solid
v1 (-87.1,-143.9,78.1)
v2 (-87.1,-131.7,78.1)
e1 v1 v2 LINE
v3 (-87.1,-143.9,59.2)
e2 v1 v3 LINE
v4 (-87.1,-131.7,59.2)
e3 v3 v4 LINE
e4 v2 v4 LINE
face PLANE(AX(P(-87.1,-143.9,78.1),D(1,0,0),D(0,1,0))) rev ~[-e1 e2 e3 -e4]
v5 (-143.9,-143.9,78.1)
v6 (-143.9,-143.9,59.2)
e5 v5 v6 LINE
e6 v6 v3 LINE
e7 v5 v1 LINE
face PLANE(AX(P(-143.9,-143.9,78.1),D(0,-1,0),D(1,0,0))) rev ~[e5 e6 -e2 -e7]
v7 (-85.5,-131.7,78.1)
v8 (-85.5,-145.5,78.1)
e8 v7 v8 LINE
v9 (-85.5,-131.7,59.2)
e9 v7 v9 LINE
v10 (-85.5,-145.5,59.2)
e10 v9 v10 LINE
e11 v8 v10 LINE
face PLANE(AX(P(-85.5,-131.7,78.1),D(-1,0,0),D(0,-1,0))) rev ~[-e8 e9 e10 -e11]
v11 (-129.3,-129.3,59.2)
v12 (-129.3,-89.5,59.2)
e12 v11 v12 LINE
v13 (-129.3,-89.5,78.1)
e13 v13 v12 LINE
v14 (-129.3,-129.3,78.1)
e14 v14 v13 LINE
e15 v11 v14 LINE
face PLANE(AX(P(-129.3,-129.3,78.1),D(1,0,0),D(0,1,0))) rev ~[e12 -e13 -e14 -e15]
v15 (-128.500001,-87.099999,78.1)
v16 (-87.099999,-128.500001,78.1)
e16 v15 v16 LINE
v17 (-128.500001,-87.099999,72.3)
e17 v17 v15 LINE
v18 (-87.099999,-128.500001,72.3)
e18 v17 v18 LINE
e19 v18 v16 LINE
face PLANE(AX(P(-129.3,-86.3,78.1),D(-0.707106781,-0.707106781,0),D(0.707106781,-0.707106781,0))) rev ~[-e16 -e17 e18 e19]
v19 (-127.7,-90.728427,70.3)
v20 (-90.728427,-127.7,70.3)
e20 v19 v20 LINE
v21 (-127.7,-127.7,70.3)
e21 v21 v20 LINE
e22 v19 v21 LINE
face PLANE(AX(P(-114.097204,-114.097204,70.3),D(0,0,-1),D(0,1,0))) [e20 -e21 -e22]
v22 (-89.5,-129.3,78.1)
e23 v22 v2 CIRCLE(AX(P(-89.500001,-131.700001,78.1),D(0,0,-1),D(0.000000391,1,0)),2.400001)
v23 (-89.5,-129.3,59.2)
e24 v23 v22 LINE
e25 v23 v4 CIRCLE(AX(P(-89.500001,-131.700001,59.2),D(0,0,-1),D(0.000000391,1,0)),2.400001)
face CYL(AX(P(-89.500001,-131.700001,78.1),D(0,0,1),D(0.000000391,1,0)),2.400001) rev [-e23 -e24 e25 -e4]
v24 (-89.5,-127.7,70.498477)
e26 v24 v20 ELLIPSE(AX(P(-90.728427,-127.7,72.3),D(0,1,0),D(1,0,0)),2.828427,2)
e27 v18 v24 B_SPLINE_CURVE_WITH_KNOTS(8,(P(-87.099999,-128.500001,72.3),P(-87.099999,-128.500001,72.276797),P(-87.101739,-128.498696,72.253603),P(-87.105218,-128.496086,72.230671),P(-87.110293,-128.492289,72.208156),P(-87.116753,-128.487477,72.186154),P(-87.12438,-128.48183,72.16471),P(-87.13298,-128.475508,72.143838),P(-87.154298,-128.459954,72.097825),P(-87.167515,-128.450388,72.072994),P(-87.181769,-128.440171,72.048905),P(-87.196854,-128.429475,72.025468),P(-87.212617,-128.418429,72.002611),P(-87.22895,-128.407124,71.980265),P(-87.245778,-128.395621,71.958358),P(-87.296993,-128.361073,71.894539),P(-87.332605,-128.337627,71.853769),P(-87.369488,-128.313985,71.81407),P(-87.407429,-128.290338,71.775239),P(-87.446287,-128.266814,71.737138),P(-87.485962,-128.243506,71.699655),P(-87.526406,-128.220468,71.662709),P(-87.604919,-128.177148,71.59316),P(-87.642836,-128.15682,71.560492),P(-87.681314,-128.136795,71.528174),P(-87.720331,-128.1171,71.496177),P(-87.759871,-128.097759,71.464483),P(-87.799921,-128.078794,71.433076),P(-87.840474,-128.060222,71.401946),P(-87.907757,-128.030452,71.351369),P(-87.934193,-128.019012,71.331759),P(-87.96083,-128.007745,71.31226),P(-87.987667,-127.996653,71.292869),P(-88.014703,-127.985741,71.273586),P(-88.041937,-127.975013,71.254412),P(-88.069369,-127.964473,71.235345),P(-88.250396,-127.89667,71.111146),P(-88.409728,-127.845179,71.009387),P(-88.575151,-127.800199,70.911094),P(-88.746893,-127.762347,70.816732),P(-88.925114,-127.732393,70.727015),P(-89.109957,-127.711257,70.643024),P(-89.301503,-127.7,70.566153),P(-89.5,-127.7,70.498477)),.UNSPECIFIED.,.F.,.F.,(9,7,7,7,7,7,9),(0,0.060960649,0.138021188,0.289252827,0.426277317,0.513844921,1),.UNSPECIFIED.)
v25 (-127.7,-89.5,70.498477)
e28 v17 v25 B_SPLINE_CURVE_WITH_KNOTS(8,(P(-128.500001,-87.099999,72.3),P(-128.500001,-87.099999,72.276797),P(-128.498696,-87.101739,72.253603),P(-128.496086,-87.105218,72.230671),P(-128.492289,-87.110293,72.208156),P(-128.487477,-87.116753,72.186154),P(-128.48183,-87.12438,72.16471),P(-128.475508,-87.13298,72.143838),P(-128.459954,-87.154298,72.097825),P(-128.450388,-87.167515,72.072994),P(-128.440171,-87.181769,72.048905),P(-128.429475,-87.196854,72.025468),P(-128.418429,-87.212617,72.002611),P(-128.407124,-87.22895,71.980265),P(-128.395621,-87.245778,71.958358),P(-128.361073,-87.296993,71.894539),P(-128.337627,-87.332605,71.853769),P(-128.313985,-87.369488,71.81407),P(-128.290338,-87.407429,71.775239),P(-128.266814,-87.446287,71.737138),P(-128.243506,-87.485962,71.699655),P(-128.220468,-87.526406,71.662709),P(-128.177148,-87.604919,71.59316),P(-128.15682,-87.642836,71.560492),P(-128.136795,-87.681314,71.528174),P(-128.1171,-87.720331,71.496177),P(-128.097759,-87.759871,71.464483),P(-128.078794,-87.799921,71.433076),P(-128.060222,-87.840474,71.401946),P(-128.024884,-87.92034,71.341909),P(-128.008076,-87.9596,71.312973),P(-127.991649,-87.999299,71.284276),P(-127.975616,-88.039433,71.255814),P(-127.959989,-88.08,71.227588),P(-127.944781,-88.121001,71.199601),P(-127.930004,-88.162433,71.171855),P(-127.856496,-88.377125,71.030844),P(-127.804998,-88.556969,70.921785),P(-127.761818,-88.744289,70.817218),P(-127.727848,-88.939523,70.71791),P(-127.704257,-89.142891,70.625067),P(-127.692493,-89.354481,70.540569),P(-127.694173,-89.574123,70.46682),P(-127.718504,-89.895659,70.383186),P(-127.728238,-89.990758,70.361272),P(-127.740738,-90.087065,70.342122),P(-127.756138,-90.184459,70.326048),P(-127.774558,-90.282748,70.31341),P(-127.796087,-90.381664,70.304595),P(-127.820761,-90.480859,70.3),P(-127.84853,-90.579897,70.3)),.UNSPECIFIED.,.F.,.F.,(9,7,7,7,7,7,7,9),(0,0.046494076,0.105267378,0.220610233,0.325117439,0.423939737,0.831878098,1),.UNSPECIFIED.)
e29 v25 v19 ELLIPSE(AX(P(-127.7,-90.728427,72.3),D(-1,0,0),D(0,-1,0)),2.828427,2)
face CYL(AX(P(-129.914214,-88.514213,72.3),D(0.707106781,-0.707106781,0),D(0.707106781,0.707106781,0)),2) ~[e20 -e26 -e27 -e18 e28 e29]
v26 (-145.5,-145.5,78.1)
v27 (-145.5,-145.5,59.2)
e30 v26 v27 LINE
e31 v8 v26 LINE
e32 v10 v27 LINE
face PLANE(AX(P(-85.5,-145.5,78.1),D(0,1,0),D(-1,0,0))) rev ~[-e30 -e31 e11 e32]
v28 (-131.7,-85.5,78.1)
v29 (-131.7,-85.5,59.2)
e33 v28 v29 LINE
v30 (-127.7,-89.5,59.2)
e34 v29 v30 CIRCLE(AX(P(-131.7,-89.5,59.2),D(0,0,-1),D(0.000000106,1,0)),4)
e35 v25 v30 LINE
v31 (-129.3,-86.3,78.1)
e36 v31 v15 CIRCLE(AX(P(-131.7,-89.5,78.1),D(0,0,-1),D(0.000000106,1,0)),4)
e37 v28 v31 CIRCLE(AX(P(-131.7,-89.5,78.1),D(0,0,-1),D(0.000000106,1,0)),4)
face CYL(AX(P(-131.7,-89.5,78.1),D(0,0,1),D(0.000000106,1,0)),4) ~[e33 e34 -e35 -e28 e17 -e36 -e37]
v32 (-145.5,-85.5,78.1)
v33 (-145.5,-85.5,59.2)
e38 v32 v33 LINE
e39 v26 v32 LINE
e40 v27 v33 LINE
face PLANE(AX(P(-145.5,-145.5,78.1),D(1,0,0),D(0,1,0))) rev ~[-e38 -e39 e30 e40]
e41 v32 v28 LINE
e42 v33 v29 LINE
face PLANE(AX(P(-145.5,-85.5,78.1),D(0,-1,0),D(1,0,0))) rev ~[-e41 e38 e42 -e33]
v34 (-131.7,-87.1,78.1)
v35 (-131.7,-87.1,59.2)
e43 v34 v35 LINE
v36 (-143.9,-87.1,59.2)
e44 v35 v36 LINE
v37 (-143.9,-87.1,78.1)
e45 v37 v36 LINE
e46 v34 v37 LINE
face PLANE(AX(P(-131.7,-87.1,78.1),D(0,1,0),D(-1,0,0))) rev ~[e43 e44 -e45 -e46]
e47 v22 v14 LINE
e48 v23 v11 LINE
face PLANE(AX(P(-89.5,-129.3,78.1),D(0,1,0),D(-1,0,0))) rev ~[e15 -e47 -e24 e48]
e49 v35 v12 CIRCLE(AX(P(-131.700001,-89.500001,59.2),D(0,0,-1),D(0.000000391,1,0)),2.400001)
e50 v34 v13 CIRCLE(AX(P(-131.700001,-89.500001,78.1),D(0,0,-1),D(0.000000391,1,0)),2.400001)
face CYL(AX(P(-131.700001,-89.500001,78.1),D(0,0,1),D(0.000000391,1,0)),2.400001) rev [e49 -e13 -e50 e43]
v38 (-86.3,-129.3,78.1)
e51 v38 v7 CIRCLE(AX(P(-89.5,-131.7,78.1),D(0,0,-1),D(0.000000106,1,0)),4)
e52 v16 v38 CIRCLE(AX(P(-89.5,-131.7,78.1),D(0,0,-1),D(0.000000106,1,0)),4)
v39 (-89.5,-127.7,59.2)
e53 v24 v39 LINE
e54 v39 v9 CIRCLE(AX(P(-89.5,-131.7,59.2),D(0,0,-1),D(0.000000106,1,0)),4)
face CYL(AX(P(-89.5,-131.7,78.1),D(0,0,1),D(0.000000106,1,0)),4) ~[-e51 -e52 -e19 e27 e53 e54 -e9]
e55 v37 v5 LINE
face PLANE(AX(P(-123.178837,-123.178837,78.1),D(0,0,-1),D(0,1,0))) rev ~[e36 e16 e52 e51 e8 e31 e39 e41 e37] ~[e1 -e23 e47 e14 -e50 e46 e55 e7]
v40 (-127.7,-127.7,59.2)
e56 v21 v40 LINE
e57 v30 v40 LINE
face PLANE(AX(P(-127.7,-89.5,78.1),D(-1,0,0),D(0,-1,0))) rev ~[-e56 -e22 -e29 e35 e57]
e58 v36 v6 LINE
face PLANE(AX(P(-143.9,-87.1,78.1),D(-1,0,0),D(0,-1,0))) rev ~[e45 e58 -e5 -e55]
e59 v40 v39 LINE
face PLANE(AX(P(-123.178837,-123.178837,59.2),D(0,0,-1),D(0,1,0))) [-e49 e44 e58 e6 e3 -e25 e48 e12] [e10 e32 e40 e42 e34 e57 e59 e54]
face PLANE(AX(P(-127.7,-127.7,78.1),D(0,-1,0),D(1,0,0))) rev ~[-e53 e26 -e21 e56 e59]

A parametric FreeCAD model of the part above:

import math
import FreeCAD as App
import Part
import Sketcher
from FreeCAD import Vector


def edges_at(feature, points):
    """Names of the edges that pass closest to the given points."""
    edges = feature.Shape.Edges
    near = lambda p: min(range(len(edges)), key=lambda i: edges[i].distToShape(Part.Vertex(*p))[0])
    return sorted({f"Edge{near(p) + 1}" for p in points})

doc = App.newDocument("Part")
body = doc.addObject("PartDesign::Body", "Body")

# Sketch on XY plane
sketch1 = body.newObject("Sketcher::SketchObject", "Sketch")
sketch1.AttachmentSupport = (doc.getObject("XY_Plane"), [""])
sketch1.MapMode = "FlatFace"
sketch1.addGeometry([
    Part.LineSegment(Vector(-30, 30, 0), Vector(-30, -30, 0)),  # 0
    Part.LineSegment(Vector(-30, -30, 0), Vector(30, -30, 0)),  # 1
    Part.LineSegment(Vector(30, -30, 0), Vector(30, -16.2, 0)),  # 2
    Part.ArcOfCircle(Part.Circle(Vector(26, -16.2, 0), Vector(0, 0, 1), 4), math.radians(0), math.radians(90)),  # 3
    Part.LineSegment(Vector(26, -12.2, 0), Vector(-12.2, -12.2, 0)),  # 4
    Part.LineSegment(Vector(-12.2, -12.2, 0), Vector(-12.2, 26, 0)),  # 5
    Part.ArcOfCircle(Part.Circle(Vector(-16.2, 26, 0), Vector(0, 0, 1), 4), math.radians(0), math.radians(90)),  # 6
    Part.LineSegment(Vector(-16.2, 30, 0), Vector(-30, 30, 0)),  # 7
    Part.LineSegment(Vector(-28.4, -28.4, 0), Vector(-28.4, 28.4, 0)),  # 8
    Part.LineSegment(Vector(-28.4, 28.4, 0), Vector(-16.2, 28.4, 0)),  # 9
    Part.ArcOfCircle(Part.Circle(Vector(-16.2, 26, 0), Vector(0, 0, 1), 2.4), math.radians(0), math.radians(90)),  # 10
    Part.LineSegment(Vector(-13.8, 26, 0), Vector(-13.8, -13.8, 0)),  # 11
    Part.LineSegment(Vector(-13.8, -13.8, 0), Vector(26, -13.8, 0)),  # 12
    Part.ArcOfCircle(Part.Circle(Vector(26, -16.2, 0), Vector(0, 0, 1), 2.4), math.radians(0), math.radians(90)),  # 13
    Part.LineSegment(Vector(28.4, -16.2, 0), Vector(28.4, -28.4, 0)),  # 14
    Part.LineSegment(Vector(28.4, -28.4, 0), Vector(-28.4, -28.4, 0)),  # 15
], False)
sketch1.addConstraint([
    Sketcher.Constraint("Coincident", 0, 2, 1, 1),
    Sketcher.Constraint("Coincident", 1, 2, 2, 1),
    Sketcher.Constraint("Tangent", 2, 2, 3, 1),
    Sketcher.Constraint("Tangent", 3, 2, 4, 1),
    Sketcher.Constraint("Coincident", 4, 2, 5, 1),
    Sketcher.Constraint("Tangent", 5, 2, 6, 1),
    Sketcher.Constraint("Tangent", 6, 2, 7, 1),
    Sketcher.Constraint("Coincident", 7, 2, 0, 1),
    Sketcher.Constraint("Coincident", 8, 2, 9, 1),
    Sketcher.Constraint("Tangent", 9, 2, 10, 2),
    Sketcher.Constraint("Tangent", 10, 1, 11, 1),
    Sketcher.Constraint("Coincident", 11, 2, 12, 1),
    Sketcher.Constraint("Tangent", 12, 2, 13, 2),
    Sketcher.Constraint("Tangent", 13, 1, 14, 1),
    Sketcher.Constraint("Coincident", 14, 2, 15, 1),
    Sketcher.Constraint("Coincident", 15, 2, 8, 1),
    Sketcher.Constraint("Vertical", 0),
    Sketcher.Constraint("Horizontal", 1),
    Sketcher.Constraint("Vertical", 2),
    Sketcher.Constraint("Horizontal", 4),
    Sketcher.Constraint("Vertical", 5),
    Sketcher.Constraint("Horizontal", 7),
    Sketcher.Constraint("Vertical", 8),
    Sketcher.Constraint("Horizontal", 9),
    Sketcher.Constraint("Vertical", 11),
    Sketcher.Constraint("Horizontal", 12),
    Sketcher.Constraint("Vertical", 14),
    Sketcher.Constraint("Horizontal", 15),
    Sketcher.Constraint("Coincident", 10, 3, 6, 3),
    Sketcher.Constraint("Coincident", 13, 3, 3, 3),
    Sketcher.Constraint("Equal", 3, 6),
    Sketcher.Constraint("Equal", 10, 13),
    Sketcher.Constraint("Symmetric", 1, 2, 7, 2, -1, 1),
    Sketcher.Constraint("Symmetric", 8, 2, 14, 2, -1, 1),
    Sketcher.Constraint("Equal", 1, 0),
    Sketcher.Constraint("Equal", 7, 2),
    Sketcher.Constraint("Radius", 3, 4.0),
    Sketcher.Constraint("Radius", 10, 2.400001),
    Sketcher.Constraint("DistanceX", 1, 1, 1, 2, 60.0),
    Sketcher.Constraint("DistanceX", 4, 2, 4, 1, 38.2),
])
pad1 = body.newObject("PartDesign::Pad", "Pad")
pad1.Profile = sketch1
pad1.Length = 18.9

# Sketch on XY plane
sketch2 = body.newObject("Sketcher::SketchObject", "Sketch001")
sketch2.AttachmentSupport = (doc.getObject("XY_Plane"), [""])
sketch2.MapMode = "FlatFace"
sketch2.addGeometry([
    Part.LineSegment(Vector(-14, 29, 0), Vector(-14, -14, 0)),
    Part.LineSegment(Vector(-14, -14, 0), Vector(29, -14, 0)),
    Part.LineSegment(Vector(29, -14, 0), Vector(-14, 29, 0)),
], False)
sketch2.addConstraint([
    Sketcher.Constraint("Coincident", 0, 2, 1, 1),
    Sketcher.Constraint("Coincident", 1, 2, 2, 1),
    Sketcher.Constraint("Coincident", 2, 2, 0, 1),
    Sketcher.Constraint("Vertical", 0),
    Sketcher.Constraint("Horizontal", 1),
    Sketcher.Constraint("Equal", 1, 0),
    Sketcher.Constraint("DistanceX", 1, 1, 1, 2, 43.0),
    Sketcher.Constraint("DistanceX", 0, 2, -1, 1, 13.8),
    Sketcher.Constraint("DistanceY", 0, 2, -1, 1, 13.8),
])
pad2 = body.newObject("PartDesign::Pad", "Pad001")
pad2.Profile = sketch2
pad2.Length = 7.8
doc.recompute()

fillet = body.newObject("PartDesign::Fillet", "Fillet")
fillet.Base = (pad2, edges_at(pad2, [(7.7, 7.7, 7.8)]))
fillet.Radius = 2
body2 = doc.addObject("PartDesign::Body", "Body001")
doc.recompute()

body.Placement = App.Placement(Vector(0, 0, 0), App.Rotation(Vector(1, 0, 0), 180))
boolean = body2.newObject("PartDesign::Boolean", "Boolean")
boolean.Type = "Fuse"
boolean.addObjects([body])
body3 = doc.addObject("PartDesign::Body", "Body002")
doc.recompute()

body2.Placement = App.Placement(Vector(-115.5, -115.5, 78.1), App.Rotation(Vector(0, 0, 1), 90))
boolean2 = body3.newObject("PartDesign::Boolean", "Boolean001")
boolean2.Type = "Fuse"
boolean2.addObjects([body2])

doc.recompute()
